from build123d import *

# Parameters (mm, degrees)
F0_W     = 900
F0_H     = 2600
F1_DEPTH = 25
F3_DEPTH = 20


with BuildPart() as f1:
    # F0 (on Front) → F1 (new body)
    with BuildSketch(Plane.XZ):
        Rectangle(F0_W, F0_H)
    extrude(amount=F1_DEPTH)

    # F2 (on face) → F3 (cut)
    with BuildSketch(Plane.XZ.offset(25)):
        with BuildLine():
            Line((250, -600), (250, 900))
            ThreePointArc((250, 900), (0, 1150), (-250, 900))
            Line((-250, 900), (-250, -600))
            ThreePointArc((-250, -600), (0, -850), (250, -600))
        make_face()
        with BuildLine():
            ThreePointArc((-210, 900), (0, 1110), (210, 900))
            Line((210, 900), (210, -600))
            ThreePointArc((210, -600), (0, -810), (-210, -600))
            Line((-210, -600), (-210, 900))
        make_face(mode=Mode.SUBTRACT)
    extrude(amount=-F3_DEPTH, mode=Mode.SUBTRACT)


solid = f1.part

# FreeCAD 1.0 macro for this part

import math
import FreeCAD as App
import Part
import Sketcher

V = App.Vector

doc = App.newDocument("Part")
params = doc.addObject("Spreadsheet::Sheet", "Params")
for row, (alias, value) in enumerate([
    ("sketch1_width", "900 mm"),
    ("sketch1_height", "2600 mm"),
    ("pad1_length", "25 mm"),
    ("sketch2_radius", "250 mm"),
    ("sketch2_radius2", "210 mm"),
    ("sketch2_height", "1500 mm"),
    ("pocket1_length", "20 mm"),
], start=1):
    params.set(f"A{row}", alias)
    params.set(f"B{row}", "=" + value)
    params.setAlias(f"B{row}", alias)

body = doc.addObject("PartDesign::Body", "Body")

# Sketch on XZ plane
sketch1 = body.newObject("Sketcher::SketchObject", "Sketch")
sketch1.AttachmentSupport = (doc.getObject("XZ_Plane"), [""])
sketch1.MapMode = "FlatFace"
sketch1.addGeometry(Part.LineSegment(V(-450, 1300, 0), V(-450, -1300, 0)), False)
sketch1.addGeometry(Part.LineSegment(V(-450, -1300, 0), V(450, -1300, 0)), False)
sketch1.addGeometry(Part.LineSegment(V(450, -1300, 0), V(450, 1300, 0)), False)
sketch1.addGeometry(Part.LineSegment(V(450, 1300, 0), V(-450, 1300, 0)), False)
sketch1.addConstraint(Sketcher.Constraint("Coincident", 0, 2, 1, 1))
sketch1.addConstraint(Sketcher.Constraint("Coincident", 1, 2, 2, 1))
sketch1.addConstraint(Sketcher.Constraint("Coincident", 2, 2, 3, 1))
sketch1.addConstraint(Sketcher.Constraint("Coincident", 3, 2, 0, 1))
sketch1.addConstraint(Sketcher.Constraint("Vertical", 0))
sketch1.addConstraint(Sketcher.Constraint("Horizontal", 1))
sketch1.addConstraint(Sketcher.Constraint("Vertical", 2))
sketch1.addConstraint(Sketcher.Constraint("Horizontal", 3))
sketch1.addConstraint(Sketcher.Constraint("Symmetric", 0, 2, 2, 2, -1, 1))
sketch1.addConstraint(Sketcher.Constraint("DistanceX", 1, 1, 1, 2, 900.0))
sketch1.addConstraint(Sketcher.Constraint("DistanceY", 0, 2, 0, 1, 2600.0))
sketch1.setExpression("Constraints[9]", "Params.sketch1_width")
sketch1.setExpression("Constraints[10]", "Params.sketch1_height")
pad1 = body.newObject("PartDesign::Pad", "Pad")
pad1.Profile = sketch1
pad1.setExpression("Length", "Params.pad1_length")

# Sketch on XZ plane
sketch2 = body.newObject("Sketcher::SketchObject", "Sketch001")
sketch2.AttachmentSupport = (doc.getObject("XZ_Plane"), [""])
sketch2.MapMode = "FlatFace"
sketch2.AttachmentOffset = App.Placement(V(0, 0, 25), App.Rotation())
sketch2.addGeometry(Part.LineSegment(V(250, -600, 0), V(250, 900, 0)), False)
sketch2.addGeometry(Part.ArcOfCircle(Part.Circle(V(0, 900, 0), V(0, 0, 1), 250), math.radians(0), math.radians(180)), False)
sketch2.addGeometry(Part.LineSegment(V(-250, 900, 0), V(-250, -600, 0)), False)
sketch2.addGeometry(Part.ArcOfCircle(Part.Circle(V(0, -600, 0), V(0, 0, 1), 250), math.radians(180), math.radians(360)), False)
sketch2.addGeometry(Part.LineSegment(V(-210, -600, 0), V(-210, 900, 0)), False)
sketch2.addGeometry(Part.ArcOfCircle(Part.Circle(V(0, 900, 0), V(0, 0, 1), 210), math.radians(0), math.radians(180)), False)
sketch2.addGeometry(Part.LineSegment(V(210, 900, 0), V(210, -600, 0)), False)
sketch2.addGeometry(Part.ArcOfCircle(Part.Circle(V(0, -600, 0), V(0, 0, 1), 210), math.radians(180), math.radians(360)), False)
sketch2.addConstraint(Sketcher.Constraint("Tangent", 0, 2, 1, 1))
sketch2.addConstraint(Sketcher.Constraint("Tangent", 1, 2, 2, 1))
sketch2.addConstraint(Sketcher.Constraint("Tangent", 2, 2, 3, 1))
sketch2.addConstraint(Sketcher.Constraint("Tangent", 3, 2, 0, 1))
sketch2.addConstraint(Sketcher.Constraint("Tangent", 4, 2, 5, 2))
sketch2.addConstraint(Sketcher.Constraint("Tangent", 5, 1, 6, 1))
sketch2.addConstraint(Sketcher.Constraint("Tangent", 6, 2, 7, 2))
sketch2.addConstraint(Sketcher.Constraint("Tangent", 7, 1, 4, 1))
sketch2.addConstraint(Sketcher.Constraint("Vertical", 0))
sketch2.addConstraint(Sketcher.Constraint("Vertical", 2))
sketch2.addConstraint(Sketcher.Constraint("Vertical", 4))
sketch2.addConstraint(Sketcher.Constraint("Vertical", 6))
sketch2.addConstraint(Sketcher.Constraint("Coincident", 5, 3, 1, 3))
sketch2.addConstraint(Sketcher.Constraint("PointOnObject", 1, 3, -2))
sketch2.addConstraint(Sketcher.Constraint("Horizontal", 7, 3, 2, 2))
sketch2.addConstraint(Sketcher.Constraint("Radius", 1, 250.0))
sketch2.addConstraint(Sketcher.Constraint("Radius", 5, 210.0))
sketch2.addConstraint(Sketcher.Constraint("DistanceY", 0, 1, 0, 2, 1500.0))
sketch2.addConstraint(Sketcher.Constraint("DistanceY", -1, 1, 1, 3, 900.0))
sketch2.setExpression("Constraints[15]", "Params.sketch2_radius")
sketch2.setExpression("Constraints[16]", "Params.sketch2_radius2")
sketch2.setExpression("Constraints[17]", "Params.sketch2_height")
pocket1 = body.newObject("PartDesign::Pocket", "Pocket")
pocket1.Profile = sketch2
pocket1.setExpression("Length", "Params.pocket1_length")

doc.recompute()
